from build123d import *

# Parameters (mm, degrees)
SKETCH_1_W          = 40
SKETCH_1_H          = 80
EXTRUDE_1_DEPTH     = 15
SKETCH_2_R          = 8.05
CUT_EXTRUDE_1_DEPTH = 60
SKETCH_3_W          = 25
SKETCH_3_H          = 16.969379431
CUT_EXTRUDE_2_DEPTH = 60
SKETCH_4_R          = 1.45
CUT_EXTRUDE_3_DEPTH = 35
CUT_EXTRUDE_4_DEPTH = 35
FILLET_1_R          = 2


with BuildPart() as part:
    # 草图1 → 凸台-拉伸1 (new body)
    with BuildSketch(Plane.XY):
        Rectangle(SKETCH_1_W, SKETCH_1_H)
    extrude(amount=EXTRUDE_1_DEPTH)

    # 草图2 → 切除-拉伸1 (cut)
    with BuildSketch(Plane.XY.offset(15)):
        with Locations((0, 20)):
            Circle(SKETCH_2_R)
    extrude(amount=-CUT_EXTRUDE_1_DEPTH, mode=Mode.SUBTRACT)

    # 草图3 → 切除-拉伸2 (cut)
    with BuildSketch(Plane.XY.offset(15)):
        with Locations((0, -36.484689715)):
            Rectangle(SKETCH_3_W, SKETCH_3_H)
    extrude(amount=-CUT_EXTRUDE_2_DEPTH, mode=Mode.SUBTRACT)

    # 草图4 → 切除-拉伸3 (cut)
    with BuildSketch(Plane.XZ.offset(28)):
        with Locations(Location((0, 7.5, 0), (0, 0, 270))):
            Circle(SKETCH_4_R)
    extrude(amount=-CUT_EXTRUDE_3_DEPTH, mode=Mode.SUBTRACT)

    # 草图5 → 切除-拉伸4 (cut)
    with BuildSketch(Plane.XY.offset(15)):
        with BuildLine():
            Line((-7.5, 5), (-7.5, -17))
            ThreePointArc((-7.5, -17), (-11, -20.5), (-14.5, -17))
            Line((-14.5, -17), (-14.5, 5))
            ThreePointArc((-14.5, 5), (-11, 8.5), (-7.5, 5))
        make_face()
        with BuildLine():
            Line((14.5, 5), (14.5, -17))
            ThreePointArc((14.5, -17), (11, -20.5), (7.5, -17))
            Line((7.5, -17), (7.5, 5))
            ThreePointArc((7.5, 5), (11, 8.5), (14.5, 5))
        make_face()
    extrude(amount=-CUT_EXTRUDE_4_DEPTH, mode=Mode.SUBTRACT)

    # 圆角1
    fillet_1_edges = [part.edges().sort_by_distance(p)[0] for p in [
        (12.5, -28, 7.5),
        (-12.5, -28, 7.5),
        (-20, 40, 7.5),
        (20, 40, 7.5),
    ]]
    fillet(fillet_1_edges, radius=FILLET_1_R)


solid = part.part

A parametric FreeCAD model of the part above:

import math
import FreeCAD as App
import Part
import Sketcher
from FreeCAD import Vector
Q = App.Units.Quantity


def edges_at(feature, points):
    """Names of the edges that pass closest to the given points."""
    edges = feature.Shape.Edges
    near = lambda p: min(range(len(edges)), key=lambda i: edges[i].distToShape(Part.Vertex(*p))[0])
    return sorted({f"Edge{near(p) + 1}" for p in points})

doc = App.newDocument("Part")
params = doc.addObject("Spreadsheet::Sheet", "Params")
for row, (alias, value) in enumerate([
    ("sketch1_width", "40 mm"),
    ("sketch1_height", "80 mm"),
    ("pad1_length", "15 mm"),
    ("sketch2_diameter", "16.1 mm"),
    ("pocket1_length", "60 mm"),
    ("sketch3_width", "25 mm"),
    ("pocket2_length", "60 mm"),
    ("sketch4_diameter", "2.9 mm"),
    ("pocket3_length", "35 mm"),
    ("sketch5_radius", "3.5 mm"),
    ("sketch5_height", "22 mm"),
    ("pocket4_length", "35 mm"),
    ("fillet_radius", "2 mm"),
], start=1):
    params.set(f"A{row}", alias)
    params.set(f"B{row}", "=" + value)
    params.setAlias(f"B{row}", alias)

body = doc.addObject("PartDesign::Body", "Body")

sketch1 = body.newObject("Sketcher::SketchObject", "Sketch")
sketch1.AttachmentSupport = (doc.getObject("XY_Plane"), [""])
sketch1.MapMode = "FlatFace"
sketch1.addGeometry(Part.LineSegment(Vector(-20, 40, 0), Vector(-20, -40, 0)), False)
sketch1.addGeometry(Part.LineSegment(Vector(-20, -40, 0), Vector(20, -40, 0)), False)
sketch1.addGeometry(Part.LineSegment(Vector(20, -40, 0), Vector(20, 40, 0)), False)
sketch1.addGeometry(Part.LineSegment(Vector(20, 40, 0), Vector(-20, 40, 0)), False)
sketch1.addConstraint(Sketcher.Constraint("Coincident", 0, 2, 1, 1))
sketch1.addConstraint(Sketcher.Constraint("Coincident", 1, 2, 2, 1))
sketch1.addConstraint(Sketcher.Constraint("Coincident", 2, 2, 3, 1))
sketch1.addConstraint(Sketcher.Constraint("Coincident", 3, 2, 0, 1))
sketch1.addConstraint(Sketcher.Constraint("Vertical", 0))
sketch1.addConstraint(Sketcher.Constraint("Horizontal", 1))
sketch1.addConstraint(Sketcher.Constraint("Vertical", 2))
sketch1.addConstraint(Sketcher.Constraint("Horizontal", 3))
sketch1.addConstraint(Sketcher.Constraint("Symmetric", 0, 2, 2, 2, -1, 1))
sketch1.addConstraint(Sketcher.Constraint("DistanceX", 1, 1, 1, 2, Q("40 mm")))
sketch1.addConstraint(Sketcher.Constraint("DistanceY", 0, 2, 0, 1, Q("80 mm")))
sketch1.setExpression("Constraints[9]", "Params.sketch1_width")
sketch1.setExpression("Constraints[10]", "Params.sketch1_height")
pad1 = body.newObject("PartDesign::Pad", "Pad")
pad1.Profile = sketch1
pad1.setExpression("Length", "Params.pad1_length")

sketch2 = body.newObject("Sketcher::SketchObject", "Sketch001")
sketch2.AttachmentSupport = (doc.getObject("XY_Plane"), [""])
sketch2.MapMode = "FlatFace"
sketch2.AttachmentOffset = App.Placement(Vector(0, 0, 15), App.Rotation())
sketch2.addGeometry(Part.Circle(Vector(0, 20, 0), Vector(0, 0, 1), 8), False)
sketch2.addConstraint(Sketcher.Constraint("PointOnObject", 0, 3, -2))
sketch2.addConstraint(Sketcher.Constraint("Diameter", 0, Q("16.1 mm")))
sketch2.addConstraint(Sketcher.Constraint("DistanceY", -1, 1, 0, 3, Q("20 mm")))
sketch2.setExpression("Constraints[1]", "Params.sketch2_diameter")
pocket1 = body.newObject("PartDesign::Pocket", "Pocket")
pocket1.Profile = sketch2
pocket1.setExpression("Length", "Params.pocket1_length")

sketch3 = body.newObject("Sketcher::SketchObject", "Sketch002")
sketch3.AttachmentSupport = (doc.getObject("XY_Plane"), [""])
sketch3.MapMode = "FlatFace"
sketch3.AttachmentOffset = App.Placement(Vector(0, 0, 15), App.Rotation())
sketch3.addGeometry(Part.LineSegment(Vector(-12, -28, 0), Vector(-12, -45, 0)), False)
sketch3.addGeometry(Part.LineSegment(Vector(-12, -45, 0), Vector(12, -45, 0)), False)
sketch3.addGeometry(Part.LineSegment(Vector(12, -45, 0), Vector(12, -28, 0)), False)
sketch3.addGeometry(Part.LineSegment(Vector(12, -28, 0), Vector(-12, -28, 0)), False)
sketch3.addConstraint(Sketcher.Constraint("Coincident", 0, 2, 1, 1))
sketch3.addConstraint(Sketcher.Constraint("Coincident", 1, 2, 2, 1))
sketch3.addConstraint(Sketcher.Constraint("Coincident", 2, 2, 3, 1))
sketch3.addConstraint(Sketcher.Constraint("Coincident", 3, 2, 0, 1))
sketch3.addConstraint(Sketcher.Constraint("Vertical", 0))
sketch3.addConstraint(Sketcher.Constraint("Horizontal", 1))
sketch3.addConstraint(Sketcher.Constraint("Vertical", 2))
sketch3.addConstraint(Sketcher.Constraint("Horizontal", 3))
sketch3.addConstraint(Sketcher.Constraint("DistanceX", 1, 1, 1, 2, Q("25 mm")))
sketch3.addConstraint(Sketcher.Constraint("DistanceY", 2, 2, -1, 1, Q("28 mm")))
sketch3.addConstraint(Sketcher.Constraint("DistanceX", 0, 2, -1, 1, Q("12.5 mm")))
sketch3.addConstraint(Sketcher.Constraint("DistanceY", 0, 2, 0, 1, Q("16.969379 mm")))
sketch3.setExpression("Constraints[8]", "Params.sketch3_width")
pocket2 = body.newObject("PartDesign::Pocket", "Pocket001")
pocket2.Profile = sketch3
pocket2.setExpression("Length", "Params.pocket2_length")

sketch4 = body.newObject("Sketcher::SketchObject", "Sketch003")
sketch4.AttachmentSupport = (doc.getObject("XZ_Plane"), [""])
sketch4.MapMode = "FlatFace"
sketch4.AttachmentOffset = App.Placement(Vector(0, 0, 28), App.Rotation())
sketch4.addGeometry(Part.Circle(Vector(0, 7.5, 0), Vector(0, 0, 1), 1.4), False)
sketch4.addConstraint(Sketcher.Constraint("PointOnObject", 0, 3, -2))
sketch4.addConstraint(Sketcher.Constraint("Diameter", 0, Q("2.9 mm")))
sketch4.addConstraint(Sketcher.Constraint("DistanceY", -1, 1, 0, 3, Q("7.5 mm")))
sketch4.setExpression("Constraints[1]", "Params.sketch4_diameter")
pocket3 = body.newObject("PartDesign::Pocket", "Pocket002")
pocket3.Profile = sketch4
pocket3.setExpression("Length", "Params.pocket3_length")

sketch5 = body.newObject("Sketcher::SketchObject", "Sketch004")
sketch5.AttachmentSupport = (doc.getObject("XY_Plane"), [""])
sketch5.MapMode = "FlatFace"
sketch5.AttachmentOffset = App.Placement(Vector(0, 0, 15), App.Rotation())
sketch5.addGeometry(Part.LineSegment(Vector(-7.5, -17, 0), Vector(-7.5, 5, 0)), False)
sketch5.addGeometry(Part.ArcOfCircle(Part.Circle(Vector(-11, 5, 0), Vector(0, 0, 1), 3.5), math.radians(0), math.radians(180)), False)
sketch5.addGeometry(Part.LineSegment(Vector(-14.5, 5, 0), Vector(-14.5, -17, 0)), False)
sketch5.addGeometry(Part.ArcOfCircle(Part.Circle(Vector(-11, -17, 0), Vector(0, 0, 1), 3.5), math.radians(180), math.radians(360)), False)
sketch5.addGeometry(Part.LineSegment(Vector(14.5, -17, 0), Vector(14.5, 5, 0)), False)
sketch5.addGeometry(Part.ArcOfCircle(Part.Circle(Vector(11, 5, 0), Vector(0, 0, 1), 3.5), math.radians(0), math.radians(180)), False)
sketch5.addGeometry(Part.LineSegment(Vector(7.5, 5, 0), Vector(7.5, -17, 0)), False)
sketch5.addGeometry(Part.ArcOfCircle(Part.Circle(Vector(11, -17, 0), Vector(0, 0, 1), 3.5), math.radians(180), math.radians(360)), False)
sketch5.addConstraint(Sketcher.Constraint("Tangent", 0, 2, 1, 1))
sketch5.addConstraint(Sketcher.Constraint("Tangent", 1, 2, 2, 1))
sketch5.addConstraint(Sketcher.Constraint("Tangent", 2, 2, 3, 1))
sketch5.addConstraint(Sketcher.Constraint("Tangent", 3, 2, 0, 1))
sketch5.addConstraint(Sketcher.Constraint("Tangent", 4, 2, 5, 1))
sketch5.addConstraint(Sketcher.Constraint("Tangent", 5, 2, 6, 1))
sketch5.addConstraint(Sketcher.Constraint("Tangent", 6, 2, 7, 1))
sketch5.addConstraint(Sketcher.Constraint("Tangent", 7, 2, 4, 1))
sketch5.addConstraint(Sketcher.Constraint("Vertical", 0))
sketch5.addConstraint(Sketcher.Constraint("Vertical", 2))
sketch5.addConstraint(Sketcher.Constraint("Vertical", 4))
sketch5.addConstraint(Sketcher.Constraint("Vertical", 6))
sketch5.addConstraint(Sketcher.Constraint("Equal", 3, 5))
sketch5.addConstraint(Sketcher.Constraint("Symmetric", 1, 3, 5, 3, -2))
sketch5.addConstraint(Sketcher.Constraint("Horizontal", 3, 3, 7, 3))
sketch5.addConstraint(Sketcher.Constraint("Radius", 1, Q("3.5 mm")))
sketch5.addConstraint(Sketcher.Constraint("DistanceY", 0, 1, 0, 2, Q("22 mm")))
sketch5.addConstraint(Sketcher.Constraint("DistanceX", 1, 3, -1, 1, Q("11 mm")))
sketch5.addConstraint(Sketcher.Constraint("DistanceY", -1, 1, 1, 3, Q("5 mm")))
sketch5.setExpression("Constraints[15]", "Params.sketch5_radius")
sketch5.setExpression("Constraints[16]", "Params.sketch5_height")
pocket4 = body.newObject("PartDesign::Pocket", "Pocket003")
pocket4.Profile = sketch5
pocket4.setExpression("Length", "Params.pocket4_length")
doc.recompute()

fillet = body.newObject("PartDesign::Fillet", "Fillet")
fillet.Base = (pocket4, edges_at(pocket4, [
    (12.5, -28, 7.5),
    (-12.5, -28, 7.5),
    (-20, 40, 7.5),
    (20, 40, 7.5),
]))
fillet.setExpression("Radius", "Params.fillet_radius")

doc.recompute()
